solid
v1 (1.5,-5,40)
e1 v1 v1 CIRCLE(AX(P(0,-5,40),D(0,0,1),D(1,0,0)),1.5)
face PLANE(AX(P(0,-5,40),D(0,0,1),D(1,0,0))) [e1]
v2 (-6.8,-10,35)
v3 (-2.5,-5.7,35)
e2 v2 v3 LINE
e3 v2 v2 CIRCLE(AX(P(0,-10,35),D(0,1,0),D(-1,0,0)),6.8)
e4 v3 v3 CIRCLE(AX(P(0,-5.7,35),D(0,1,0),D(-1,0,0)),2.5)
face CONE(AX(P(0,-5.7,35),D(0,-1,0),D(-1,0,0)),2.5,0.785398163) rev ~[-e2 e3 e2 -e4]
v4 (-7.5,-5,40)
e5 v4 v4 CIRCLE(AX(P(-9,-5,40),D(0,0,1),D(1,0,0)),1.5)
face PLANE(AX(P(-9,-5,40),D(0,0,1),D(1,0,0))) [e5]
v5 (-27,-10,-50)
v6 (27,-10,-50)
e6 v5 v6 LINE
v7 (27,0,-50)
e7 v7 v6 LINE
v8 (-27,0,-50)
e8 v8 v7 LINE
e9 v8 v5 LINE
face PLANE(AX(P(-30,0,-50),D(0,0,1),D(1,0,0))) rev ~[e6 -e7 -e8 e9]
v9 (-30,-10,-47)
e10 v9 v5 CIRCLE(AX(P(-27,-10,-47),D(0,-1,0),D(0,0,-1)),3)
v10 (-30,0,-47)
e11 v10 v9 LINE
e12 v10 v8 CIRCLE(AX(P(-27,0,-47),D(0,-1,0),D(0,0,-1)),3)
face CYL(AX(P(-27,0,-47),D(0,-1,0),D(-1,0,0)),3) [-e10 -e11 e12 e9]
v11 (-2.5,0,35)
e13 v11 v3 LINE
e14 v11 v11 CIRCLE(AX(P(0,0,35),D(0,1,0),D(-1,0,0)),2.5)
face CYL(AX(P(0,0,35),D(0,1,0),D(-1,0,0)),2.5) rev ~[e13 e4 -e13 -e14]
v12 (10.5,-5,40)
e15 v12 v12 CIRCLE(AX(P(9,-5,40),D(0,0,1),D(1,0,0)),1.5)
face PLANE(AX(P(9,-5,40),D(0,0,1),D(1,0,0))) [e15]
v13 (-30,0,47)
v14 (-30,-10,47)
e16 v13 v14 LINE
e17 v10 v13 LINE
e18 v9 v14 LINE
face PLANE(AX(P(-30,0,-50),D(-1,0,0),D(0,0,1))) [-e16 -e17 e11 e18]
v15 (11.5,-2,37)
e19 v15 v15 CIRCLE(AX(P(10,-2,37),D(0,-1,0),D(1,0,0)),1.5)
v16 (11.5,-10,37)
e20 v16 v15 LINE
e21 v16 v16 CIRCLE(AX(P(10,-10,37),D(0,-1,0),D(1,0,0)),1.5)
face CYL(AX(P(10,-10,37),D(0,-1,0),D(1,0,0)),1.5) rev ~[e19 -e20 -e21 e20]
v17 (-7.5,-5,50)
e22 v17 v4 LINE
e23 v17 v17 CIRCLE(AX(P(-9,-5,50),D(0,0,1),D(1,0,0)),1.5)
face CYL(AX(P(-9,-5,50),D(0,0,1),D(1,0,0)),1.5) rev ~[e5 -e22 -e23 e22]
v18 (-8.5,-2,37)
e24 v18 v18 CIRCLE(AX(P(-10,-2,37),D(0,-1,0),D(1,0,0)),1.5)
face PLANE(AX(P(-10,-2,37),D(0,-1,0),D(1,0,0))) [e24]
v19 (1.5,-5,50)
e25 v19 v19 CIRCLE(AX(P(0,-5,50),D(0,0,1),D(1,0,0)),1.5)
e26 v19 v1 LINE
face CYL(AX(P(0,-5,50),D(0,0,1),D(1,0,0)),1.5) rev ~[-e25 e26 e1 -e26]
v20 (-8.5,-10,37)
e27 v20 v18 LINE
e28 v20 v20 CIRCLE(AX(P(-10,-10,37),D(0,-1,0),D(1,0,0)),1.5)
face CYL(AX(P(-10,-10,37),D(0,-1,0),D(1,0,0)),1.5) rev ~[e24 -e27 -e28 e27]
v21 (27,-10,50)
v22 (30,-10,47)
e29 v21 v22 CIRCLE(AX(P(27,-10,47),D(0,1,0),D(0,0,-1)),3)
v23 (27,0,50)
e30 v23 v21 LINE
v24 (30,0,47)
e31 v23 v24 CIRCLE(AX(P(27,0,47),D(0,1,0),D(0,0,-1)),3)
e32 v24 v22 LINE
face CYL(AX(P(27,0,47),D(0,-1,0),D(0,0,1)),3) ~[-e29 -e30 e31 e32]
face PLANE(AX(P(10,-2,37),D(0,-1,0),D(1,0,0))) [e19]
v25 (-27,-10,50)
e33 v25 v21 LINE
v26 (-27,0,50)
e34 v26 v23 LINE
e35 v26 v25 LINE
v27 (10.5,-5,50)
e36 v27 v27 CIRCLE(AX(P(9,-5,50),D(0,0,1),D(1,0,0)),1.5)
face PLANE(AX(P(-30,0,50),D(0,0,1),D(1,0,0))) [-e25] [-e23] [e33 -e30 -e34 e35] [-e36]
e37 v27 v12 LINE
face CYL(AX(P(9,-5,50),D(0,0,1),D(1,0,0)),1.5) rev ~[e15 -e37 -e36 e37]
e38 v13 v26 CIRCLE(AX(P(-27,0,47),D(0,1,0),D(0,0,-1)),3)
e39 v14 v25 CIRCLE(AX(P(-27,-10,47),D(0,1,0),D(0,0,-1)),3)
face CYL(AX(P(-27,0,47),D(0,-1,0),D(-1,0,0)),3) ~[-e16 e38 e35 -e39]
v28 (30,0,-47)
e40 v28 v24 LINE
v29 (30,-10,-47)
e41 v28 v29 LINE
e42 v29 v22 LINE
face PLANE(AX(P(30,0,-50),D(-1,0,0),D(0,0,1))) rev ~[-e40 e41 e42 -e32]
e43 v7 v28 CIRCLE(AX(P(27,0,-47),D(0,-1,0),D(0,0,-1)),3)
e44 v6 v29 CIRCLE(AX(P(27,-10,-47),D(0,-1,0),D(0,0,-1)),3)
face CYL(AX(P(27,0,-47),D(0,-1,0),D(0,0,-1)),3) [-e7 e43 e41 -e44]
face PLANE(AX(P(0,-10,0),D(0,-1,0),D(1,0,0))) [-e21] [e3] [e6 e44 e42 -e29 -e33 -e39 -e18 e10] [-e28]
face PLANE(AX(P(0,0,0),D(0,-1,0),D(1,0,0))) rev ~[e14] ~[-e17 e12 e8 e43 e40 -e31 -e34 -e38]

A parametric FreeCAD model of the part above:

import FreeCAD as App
import Part
import Sketcher
from FreeCAD import Vector


def edges_at(feature, points):
    """Names of the edges that pass closest to the given points."""
    edges = feature.Shape.Edges
    near = lambda p: min(range(len(edges)), key=lambda i: edges[i].distToShape(Part.Vertex(*p))[0])
    return sorted({f"Edge{near(p) + 1}" for p in points})

doc = App.newDocument("Part")
body = doc.addObject("PartDesign::Body", "Body")

# Sketch on XZ plane
sketch1 = doc.addObject("Sketcher::SketchObject", "Sketch")
body.addObject(sketch1)
sketch1.AttachmentSupport = (doc.XZ_Plane, [""])
sketch1.MapMode = "FlatFace"
sketch1.addGeometry([
    Part.LineSegment(Vector(-30, 50, 0), Vector(-30, -50, 0)),
    Part.LineSegment(Vector(-30, -50, 0), Vector(30, -50, 0)),
    Part.LineSegment(Vector(30, -50, 0), Vector(30, 50, 0)),
    Part.LineSegment(Vector(30, 50, 0), Vector(-30, 50, 0)),
], False)
sketch1.addConstraint([
    Sketcher.Constraint("Coincident", 0, 2, 1, 1),
    Sketcher.Constraint("Coincident", 1, 2, 2, 1),
    Sketcher.Constraint("Coincident", 2, 2, 3, 1),
    Sketcher.Constraint("Coincident", 3, 2, 0, 1),
    Sketcher.Constraint("Vertical", 0),
    Sketcher.Constraint("Horizontal", 1),
    Sketcher.Constraint("Vertical", 2),
    Sketcher.Constraint("Horizontal", 3),
    Sketcher.Constraint("Symmetric", 0, 2, 2, 2, -1, 1),
    Sketcher.Constraint("DistanceX", 1, 1, 1, 2, 60.0),
    Sketcher.Constraint("DistanceY", 0, 2, 0, 1, 100.0),
])
pad1 = doc.addObject("PartDesign::Pad", "Pad")
body.addObject(pad1)
pad1.Profile = sketch1
pad1.Length = 10

# Sketch on XZ plane
sketch2 = doc.addObject("Sketcher::SketchObject", "Sketch001")
body.addObject(sketch2)
sketch2.AttachmentSupport = (doc.XZ_Plane, [""])
sketch2.MapMode = "FlatFace"
sketch2.AttachmentOffset = App.Placement(Vector(0, 0, 10), App.Rotation())
sketch2.addGeometry([
    Part.Circle(Vector(10, 37, 0), Vector(0, 0, 1), 1.5),
    Part.Circle(Vector(-10, 37, 0), Vector(0, 0, 1), 1.5),
], False)
sketch2.addConstraint([
    Sketcher.Constraint("Equal", 0, 1),
    Sketcher.Constraint("Symmetric", 0, 3, 1, 3, -2),
    Sketcher.Constraint("Diameter", 0, 3.0),
    Sketcher.Constraint("DistanceX", -1, 1, 0, 3, 10.0),
    Sketcher.Constraint("DistanceY", -1, 1, 0, 3, 37.0),
])
pocket1 = doc.addObject("PartDesign::Pocket", "Pocket")
body.addObject(pocket1)
pocket1.Profile = sketch2
pocket1.Length = 8

# Sketch on XY plane
sketch3 = doc.addObject("Sketcher::SketchObject", "Sketch002")
body.addObject(sketch3)
sketch3.AttachmentSupport = (doc.XY_Plane, [""])
sketch3.MapMode = "FlatFace"
sketch3.AttachmentOffset = App.Placement(Vector(0, 0, 50), App.Rotation())
sketch3.addGeometry([
    Part.Circle(Vector(9, -5, 0), Vector(0, 0, 1), 1.5),
    Part.Circle(Vector(0, -5, 0), Vector(0, 0, 1), 1.5),
    Part.Circle(Vector(-9, -5, 0), Vector(0, 0, 1), 1.5),
], False)
sketch3.addConstraint([
    Sketcher.Constraint("Equal", 0, 1),
    Sketcher.Constraint("Equal", 1, 2),
    Sketcher.Constraint("Symmetric", 0, 3, 2, 3, -2),
    Sketcher.Constraint("PointOnObject", 1, 3, -2),
    Sketcher.Constraint("Horizontal", 0, 3, 1, 3),
    Sketcher.Constraint("Diameter", 0, 3.0),
    Sketcher.Constraint("DistanceX", -1, 1, 0, 3, 9.0),
    Sketcher.Constraint("DistanceY", 0, 3, -1, 1, 5.0),
])
pocket2 = doc.addObject("PartDesign::Pocket", "Pocket001")
body.addObject(pocket2)
pocket2.Profile = sketch3
pocket2.Length = 10

# Sketch on XZ plane
sketch4 = doc.addObject("Sketcher::SketchObject", "Sketch003")
body.addObject(sketch4)
sketch4.AttachmentSupport = (doc.XZ_Plane, [""])
sketch4.MapMode = "FlatFace"
sketch4.addGeometry(Part.Circle(Vector(0, 35, 0), Vector(0, 0, 1), 2.5), False)
sketch4.addConstraint([
    Sketcher.Constraint("PointOnObject", 0, 3, -2),
    Sketcher.Constraint("Diameter", 0, 5.0),
    Sketcher.Constraint("DistanceY", -1, 1, 0, 3, 35.0),
])
pocket3 = doc.addObject("PartDesign::Pocket", "Pocket002")
body.addObject(pocket3)
pocket3.Profile = sketch4
pocket3.Length = 25
pocket3.Reversed = True
doc.recompute()

chamfer = doc.addObject("PartDesign::Chamfer", "Chamfer")
body.addObject(chamfer)
chamfer.Base = (pocket3, edges_at(pocket3, [(2.5, -10, 35)]))
chamfer.Size = 4.3
doc.recompute()

fillet = doc.addObject("PartDesign::Fillet", "Fillet")
body.addObject(fillet)
fillet.Base = (chamfer, edges_at(chamfer, [
    (30, -5, -50),
    (-30, -5, -50),
    (-30, -5, 50),
    (30, -5, 50),
]))
fillet.Radius = 3

doc.recompute()
